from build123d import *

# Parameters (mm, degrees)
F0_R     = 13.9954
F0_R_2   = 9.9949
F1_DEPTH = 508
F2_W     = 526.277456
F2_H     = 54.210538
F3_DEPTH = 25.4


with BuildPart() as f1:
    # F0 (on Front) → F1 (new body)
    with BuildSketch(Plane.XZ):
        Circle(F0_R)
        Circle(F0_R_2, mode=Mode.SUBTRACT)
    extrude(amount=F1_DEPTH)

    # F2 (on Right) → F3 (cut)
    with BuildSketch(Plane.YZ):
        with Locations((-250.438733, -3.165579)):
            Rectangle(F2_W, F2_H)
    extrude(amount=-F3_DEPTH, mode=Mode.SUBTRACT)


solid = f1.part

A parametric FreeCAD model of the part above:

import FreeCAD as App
import Part
import Sketcher
Q = App.Units.Quantity


def add_polygon(sketch, points):
    """Adds a closed chain of lines whose ends are joined by coincident constraints."""
    first, n = sketch.GeometryCount, len(points)
    for a, b in zip(points, points[1:] + points[:1]):
        sketch.addGeometry(Part.LineSegment(App.Vector(*a, 0), App.Vector(*b, 0)), False)
    for i in range(n):
        sketch.addConstraint(Sketcher.Constraint("Coincident", first + i, 2, first + (i + 1) % n, 1))

doc = App.newDocument("Part")
params = doc.addObject("Spreadsheet::Sheet", "Params")
for row, (alias, value) in enumerate([
    ("sketch1_diameter", "1.102 in"),
    ("sketch1_diameter2", "0.787 in"),
    ("pad1_length", "20 in"),
    ("pocket1_length", "1 in"),
], start=1):
    params.set(f"A{row}", alias)
    params.set(f"B{row}", "=" + value)
    params.setAlias(f"B{row}", alias)

body = doc.addObject("PartDesign::Body", "Body")

# Sketch on XZ plane
sketch1 = body.newObject("Sketcher::SketchObject", "Sketch")
sketch1.AttachmentSupport = (doc.getObject("XZ_Plane"), [""])
sketch1.MapMode = "FlatFace"
sketch1.addGeometry([
    Part.Circle(App.Vector(0, 0, 0), App.Vector(0, 0, 1), 13.9954),
    Part.Circle(App.Vector(0, 0, 0), App.Vector(0, 0, 1), 9.9949),
], False)
sketch1.addConstraint([
    Sketcher.Constraint("Coincident", 0, 3, -1, 1),
    Sketcher.Constraint("Coincident", 1, 3, -1, 1),
    Sketcher.Constraint("Diameter", 0, Q("1.102 in")),
    Sketcher.Constraint("Diameter", 1, Q("0.787 in")),
])
sketch1.setExpression("Constraints[2]", "Params.sketch1_diameter")
sketch1.setExpression("Constraints[3]", "Params.sketch1_diameter2")
pad1 = body.newObject("PartDesign::Pad", "Pad")
pad1.Profile = sketch1
pad1.setExpression("Length", "Params.pad1_length")

# Sketch on YZ plane
sketch2 = body.newObject("Sketcher::SketchObject", "Sketch001")
sketch2.AttachmentSupport = (doc.getObject("YZ_Plane"), [""])
sketch2.MapMode = "FlatFace"
add_polygon(sketch2, [(-513.577461, 23.93969), (-513.577461, -30.270848), (12.699995, -30.270848), (12.699995, 23.93969)])  # lines 0-3
sketch2.addConstraint([
    Sketcher.Constraint("Vertical", 0),
    Sketcher.Constraint("Horizontal", 1),
    Sketcher.Constraint("Vertical", 2),
    Sketcher.Constraint("Horizontal", 3),
    Sketcher.Constraint("DistanceX", -1, 1, 1, 2, Q("0.4999998 in")),
    Sketcher.Constraint("DistanceX", 1, 1, 1, 2, Q("526.277456 mm")),
    Sketcher.Constraint("DistanceY", 0, 2, 0, 1, Q("54.210538 mm")),
    Sketcher.Constraint("DistanceY", 0, 2, -1, 1, Q("30.270848 mm")),
])
pocket1 = body.newObject("PartDesign::Pocket", "Pocket")
pocket1.Profile = sketch2
pocket1.setExpression("Length", "Params.pocket1_length")

doc.recompute()
